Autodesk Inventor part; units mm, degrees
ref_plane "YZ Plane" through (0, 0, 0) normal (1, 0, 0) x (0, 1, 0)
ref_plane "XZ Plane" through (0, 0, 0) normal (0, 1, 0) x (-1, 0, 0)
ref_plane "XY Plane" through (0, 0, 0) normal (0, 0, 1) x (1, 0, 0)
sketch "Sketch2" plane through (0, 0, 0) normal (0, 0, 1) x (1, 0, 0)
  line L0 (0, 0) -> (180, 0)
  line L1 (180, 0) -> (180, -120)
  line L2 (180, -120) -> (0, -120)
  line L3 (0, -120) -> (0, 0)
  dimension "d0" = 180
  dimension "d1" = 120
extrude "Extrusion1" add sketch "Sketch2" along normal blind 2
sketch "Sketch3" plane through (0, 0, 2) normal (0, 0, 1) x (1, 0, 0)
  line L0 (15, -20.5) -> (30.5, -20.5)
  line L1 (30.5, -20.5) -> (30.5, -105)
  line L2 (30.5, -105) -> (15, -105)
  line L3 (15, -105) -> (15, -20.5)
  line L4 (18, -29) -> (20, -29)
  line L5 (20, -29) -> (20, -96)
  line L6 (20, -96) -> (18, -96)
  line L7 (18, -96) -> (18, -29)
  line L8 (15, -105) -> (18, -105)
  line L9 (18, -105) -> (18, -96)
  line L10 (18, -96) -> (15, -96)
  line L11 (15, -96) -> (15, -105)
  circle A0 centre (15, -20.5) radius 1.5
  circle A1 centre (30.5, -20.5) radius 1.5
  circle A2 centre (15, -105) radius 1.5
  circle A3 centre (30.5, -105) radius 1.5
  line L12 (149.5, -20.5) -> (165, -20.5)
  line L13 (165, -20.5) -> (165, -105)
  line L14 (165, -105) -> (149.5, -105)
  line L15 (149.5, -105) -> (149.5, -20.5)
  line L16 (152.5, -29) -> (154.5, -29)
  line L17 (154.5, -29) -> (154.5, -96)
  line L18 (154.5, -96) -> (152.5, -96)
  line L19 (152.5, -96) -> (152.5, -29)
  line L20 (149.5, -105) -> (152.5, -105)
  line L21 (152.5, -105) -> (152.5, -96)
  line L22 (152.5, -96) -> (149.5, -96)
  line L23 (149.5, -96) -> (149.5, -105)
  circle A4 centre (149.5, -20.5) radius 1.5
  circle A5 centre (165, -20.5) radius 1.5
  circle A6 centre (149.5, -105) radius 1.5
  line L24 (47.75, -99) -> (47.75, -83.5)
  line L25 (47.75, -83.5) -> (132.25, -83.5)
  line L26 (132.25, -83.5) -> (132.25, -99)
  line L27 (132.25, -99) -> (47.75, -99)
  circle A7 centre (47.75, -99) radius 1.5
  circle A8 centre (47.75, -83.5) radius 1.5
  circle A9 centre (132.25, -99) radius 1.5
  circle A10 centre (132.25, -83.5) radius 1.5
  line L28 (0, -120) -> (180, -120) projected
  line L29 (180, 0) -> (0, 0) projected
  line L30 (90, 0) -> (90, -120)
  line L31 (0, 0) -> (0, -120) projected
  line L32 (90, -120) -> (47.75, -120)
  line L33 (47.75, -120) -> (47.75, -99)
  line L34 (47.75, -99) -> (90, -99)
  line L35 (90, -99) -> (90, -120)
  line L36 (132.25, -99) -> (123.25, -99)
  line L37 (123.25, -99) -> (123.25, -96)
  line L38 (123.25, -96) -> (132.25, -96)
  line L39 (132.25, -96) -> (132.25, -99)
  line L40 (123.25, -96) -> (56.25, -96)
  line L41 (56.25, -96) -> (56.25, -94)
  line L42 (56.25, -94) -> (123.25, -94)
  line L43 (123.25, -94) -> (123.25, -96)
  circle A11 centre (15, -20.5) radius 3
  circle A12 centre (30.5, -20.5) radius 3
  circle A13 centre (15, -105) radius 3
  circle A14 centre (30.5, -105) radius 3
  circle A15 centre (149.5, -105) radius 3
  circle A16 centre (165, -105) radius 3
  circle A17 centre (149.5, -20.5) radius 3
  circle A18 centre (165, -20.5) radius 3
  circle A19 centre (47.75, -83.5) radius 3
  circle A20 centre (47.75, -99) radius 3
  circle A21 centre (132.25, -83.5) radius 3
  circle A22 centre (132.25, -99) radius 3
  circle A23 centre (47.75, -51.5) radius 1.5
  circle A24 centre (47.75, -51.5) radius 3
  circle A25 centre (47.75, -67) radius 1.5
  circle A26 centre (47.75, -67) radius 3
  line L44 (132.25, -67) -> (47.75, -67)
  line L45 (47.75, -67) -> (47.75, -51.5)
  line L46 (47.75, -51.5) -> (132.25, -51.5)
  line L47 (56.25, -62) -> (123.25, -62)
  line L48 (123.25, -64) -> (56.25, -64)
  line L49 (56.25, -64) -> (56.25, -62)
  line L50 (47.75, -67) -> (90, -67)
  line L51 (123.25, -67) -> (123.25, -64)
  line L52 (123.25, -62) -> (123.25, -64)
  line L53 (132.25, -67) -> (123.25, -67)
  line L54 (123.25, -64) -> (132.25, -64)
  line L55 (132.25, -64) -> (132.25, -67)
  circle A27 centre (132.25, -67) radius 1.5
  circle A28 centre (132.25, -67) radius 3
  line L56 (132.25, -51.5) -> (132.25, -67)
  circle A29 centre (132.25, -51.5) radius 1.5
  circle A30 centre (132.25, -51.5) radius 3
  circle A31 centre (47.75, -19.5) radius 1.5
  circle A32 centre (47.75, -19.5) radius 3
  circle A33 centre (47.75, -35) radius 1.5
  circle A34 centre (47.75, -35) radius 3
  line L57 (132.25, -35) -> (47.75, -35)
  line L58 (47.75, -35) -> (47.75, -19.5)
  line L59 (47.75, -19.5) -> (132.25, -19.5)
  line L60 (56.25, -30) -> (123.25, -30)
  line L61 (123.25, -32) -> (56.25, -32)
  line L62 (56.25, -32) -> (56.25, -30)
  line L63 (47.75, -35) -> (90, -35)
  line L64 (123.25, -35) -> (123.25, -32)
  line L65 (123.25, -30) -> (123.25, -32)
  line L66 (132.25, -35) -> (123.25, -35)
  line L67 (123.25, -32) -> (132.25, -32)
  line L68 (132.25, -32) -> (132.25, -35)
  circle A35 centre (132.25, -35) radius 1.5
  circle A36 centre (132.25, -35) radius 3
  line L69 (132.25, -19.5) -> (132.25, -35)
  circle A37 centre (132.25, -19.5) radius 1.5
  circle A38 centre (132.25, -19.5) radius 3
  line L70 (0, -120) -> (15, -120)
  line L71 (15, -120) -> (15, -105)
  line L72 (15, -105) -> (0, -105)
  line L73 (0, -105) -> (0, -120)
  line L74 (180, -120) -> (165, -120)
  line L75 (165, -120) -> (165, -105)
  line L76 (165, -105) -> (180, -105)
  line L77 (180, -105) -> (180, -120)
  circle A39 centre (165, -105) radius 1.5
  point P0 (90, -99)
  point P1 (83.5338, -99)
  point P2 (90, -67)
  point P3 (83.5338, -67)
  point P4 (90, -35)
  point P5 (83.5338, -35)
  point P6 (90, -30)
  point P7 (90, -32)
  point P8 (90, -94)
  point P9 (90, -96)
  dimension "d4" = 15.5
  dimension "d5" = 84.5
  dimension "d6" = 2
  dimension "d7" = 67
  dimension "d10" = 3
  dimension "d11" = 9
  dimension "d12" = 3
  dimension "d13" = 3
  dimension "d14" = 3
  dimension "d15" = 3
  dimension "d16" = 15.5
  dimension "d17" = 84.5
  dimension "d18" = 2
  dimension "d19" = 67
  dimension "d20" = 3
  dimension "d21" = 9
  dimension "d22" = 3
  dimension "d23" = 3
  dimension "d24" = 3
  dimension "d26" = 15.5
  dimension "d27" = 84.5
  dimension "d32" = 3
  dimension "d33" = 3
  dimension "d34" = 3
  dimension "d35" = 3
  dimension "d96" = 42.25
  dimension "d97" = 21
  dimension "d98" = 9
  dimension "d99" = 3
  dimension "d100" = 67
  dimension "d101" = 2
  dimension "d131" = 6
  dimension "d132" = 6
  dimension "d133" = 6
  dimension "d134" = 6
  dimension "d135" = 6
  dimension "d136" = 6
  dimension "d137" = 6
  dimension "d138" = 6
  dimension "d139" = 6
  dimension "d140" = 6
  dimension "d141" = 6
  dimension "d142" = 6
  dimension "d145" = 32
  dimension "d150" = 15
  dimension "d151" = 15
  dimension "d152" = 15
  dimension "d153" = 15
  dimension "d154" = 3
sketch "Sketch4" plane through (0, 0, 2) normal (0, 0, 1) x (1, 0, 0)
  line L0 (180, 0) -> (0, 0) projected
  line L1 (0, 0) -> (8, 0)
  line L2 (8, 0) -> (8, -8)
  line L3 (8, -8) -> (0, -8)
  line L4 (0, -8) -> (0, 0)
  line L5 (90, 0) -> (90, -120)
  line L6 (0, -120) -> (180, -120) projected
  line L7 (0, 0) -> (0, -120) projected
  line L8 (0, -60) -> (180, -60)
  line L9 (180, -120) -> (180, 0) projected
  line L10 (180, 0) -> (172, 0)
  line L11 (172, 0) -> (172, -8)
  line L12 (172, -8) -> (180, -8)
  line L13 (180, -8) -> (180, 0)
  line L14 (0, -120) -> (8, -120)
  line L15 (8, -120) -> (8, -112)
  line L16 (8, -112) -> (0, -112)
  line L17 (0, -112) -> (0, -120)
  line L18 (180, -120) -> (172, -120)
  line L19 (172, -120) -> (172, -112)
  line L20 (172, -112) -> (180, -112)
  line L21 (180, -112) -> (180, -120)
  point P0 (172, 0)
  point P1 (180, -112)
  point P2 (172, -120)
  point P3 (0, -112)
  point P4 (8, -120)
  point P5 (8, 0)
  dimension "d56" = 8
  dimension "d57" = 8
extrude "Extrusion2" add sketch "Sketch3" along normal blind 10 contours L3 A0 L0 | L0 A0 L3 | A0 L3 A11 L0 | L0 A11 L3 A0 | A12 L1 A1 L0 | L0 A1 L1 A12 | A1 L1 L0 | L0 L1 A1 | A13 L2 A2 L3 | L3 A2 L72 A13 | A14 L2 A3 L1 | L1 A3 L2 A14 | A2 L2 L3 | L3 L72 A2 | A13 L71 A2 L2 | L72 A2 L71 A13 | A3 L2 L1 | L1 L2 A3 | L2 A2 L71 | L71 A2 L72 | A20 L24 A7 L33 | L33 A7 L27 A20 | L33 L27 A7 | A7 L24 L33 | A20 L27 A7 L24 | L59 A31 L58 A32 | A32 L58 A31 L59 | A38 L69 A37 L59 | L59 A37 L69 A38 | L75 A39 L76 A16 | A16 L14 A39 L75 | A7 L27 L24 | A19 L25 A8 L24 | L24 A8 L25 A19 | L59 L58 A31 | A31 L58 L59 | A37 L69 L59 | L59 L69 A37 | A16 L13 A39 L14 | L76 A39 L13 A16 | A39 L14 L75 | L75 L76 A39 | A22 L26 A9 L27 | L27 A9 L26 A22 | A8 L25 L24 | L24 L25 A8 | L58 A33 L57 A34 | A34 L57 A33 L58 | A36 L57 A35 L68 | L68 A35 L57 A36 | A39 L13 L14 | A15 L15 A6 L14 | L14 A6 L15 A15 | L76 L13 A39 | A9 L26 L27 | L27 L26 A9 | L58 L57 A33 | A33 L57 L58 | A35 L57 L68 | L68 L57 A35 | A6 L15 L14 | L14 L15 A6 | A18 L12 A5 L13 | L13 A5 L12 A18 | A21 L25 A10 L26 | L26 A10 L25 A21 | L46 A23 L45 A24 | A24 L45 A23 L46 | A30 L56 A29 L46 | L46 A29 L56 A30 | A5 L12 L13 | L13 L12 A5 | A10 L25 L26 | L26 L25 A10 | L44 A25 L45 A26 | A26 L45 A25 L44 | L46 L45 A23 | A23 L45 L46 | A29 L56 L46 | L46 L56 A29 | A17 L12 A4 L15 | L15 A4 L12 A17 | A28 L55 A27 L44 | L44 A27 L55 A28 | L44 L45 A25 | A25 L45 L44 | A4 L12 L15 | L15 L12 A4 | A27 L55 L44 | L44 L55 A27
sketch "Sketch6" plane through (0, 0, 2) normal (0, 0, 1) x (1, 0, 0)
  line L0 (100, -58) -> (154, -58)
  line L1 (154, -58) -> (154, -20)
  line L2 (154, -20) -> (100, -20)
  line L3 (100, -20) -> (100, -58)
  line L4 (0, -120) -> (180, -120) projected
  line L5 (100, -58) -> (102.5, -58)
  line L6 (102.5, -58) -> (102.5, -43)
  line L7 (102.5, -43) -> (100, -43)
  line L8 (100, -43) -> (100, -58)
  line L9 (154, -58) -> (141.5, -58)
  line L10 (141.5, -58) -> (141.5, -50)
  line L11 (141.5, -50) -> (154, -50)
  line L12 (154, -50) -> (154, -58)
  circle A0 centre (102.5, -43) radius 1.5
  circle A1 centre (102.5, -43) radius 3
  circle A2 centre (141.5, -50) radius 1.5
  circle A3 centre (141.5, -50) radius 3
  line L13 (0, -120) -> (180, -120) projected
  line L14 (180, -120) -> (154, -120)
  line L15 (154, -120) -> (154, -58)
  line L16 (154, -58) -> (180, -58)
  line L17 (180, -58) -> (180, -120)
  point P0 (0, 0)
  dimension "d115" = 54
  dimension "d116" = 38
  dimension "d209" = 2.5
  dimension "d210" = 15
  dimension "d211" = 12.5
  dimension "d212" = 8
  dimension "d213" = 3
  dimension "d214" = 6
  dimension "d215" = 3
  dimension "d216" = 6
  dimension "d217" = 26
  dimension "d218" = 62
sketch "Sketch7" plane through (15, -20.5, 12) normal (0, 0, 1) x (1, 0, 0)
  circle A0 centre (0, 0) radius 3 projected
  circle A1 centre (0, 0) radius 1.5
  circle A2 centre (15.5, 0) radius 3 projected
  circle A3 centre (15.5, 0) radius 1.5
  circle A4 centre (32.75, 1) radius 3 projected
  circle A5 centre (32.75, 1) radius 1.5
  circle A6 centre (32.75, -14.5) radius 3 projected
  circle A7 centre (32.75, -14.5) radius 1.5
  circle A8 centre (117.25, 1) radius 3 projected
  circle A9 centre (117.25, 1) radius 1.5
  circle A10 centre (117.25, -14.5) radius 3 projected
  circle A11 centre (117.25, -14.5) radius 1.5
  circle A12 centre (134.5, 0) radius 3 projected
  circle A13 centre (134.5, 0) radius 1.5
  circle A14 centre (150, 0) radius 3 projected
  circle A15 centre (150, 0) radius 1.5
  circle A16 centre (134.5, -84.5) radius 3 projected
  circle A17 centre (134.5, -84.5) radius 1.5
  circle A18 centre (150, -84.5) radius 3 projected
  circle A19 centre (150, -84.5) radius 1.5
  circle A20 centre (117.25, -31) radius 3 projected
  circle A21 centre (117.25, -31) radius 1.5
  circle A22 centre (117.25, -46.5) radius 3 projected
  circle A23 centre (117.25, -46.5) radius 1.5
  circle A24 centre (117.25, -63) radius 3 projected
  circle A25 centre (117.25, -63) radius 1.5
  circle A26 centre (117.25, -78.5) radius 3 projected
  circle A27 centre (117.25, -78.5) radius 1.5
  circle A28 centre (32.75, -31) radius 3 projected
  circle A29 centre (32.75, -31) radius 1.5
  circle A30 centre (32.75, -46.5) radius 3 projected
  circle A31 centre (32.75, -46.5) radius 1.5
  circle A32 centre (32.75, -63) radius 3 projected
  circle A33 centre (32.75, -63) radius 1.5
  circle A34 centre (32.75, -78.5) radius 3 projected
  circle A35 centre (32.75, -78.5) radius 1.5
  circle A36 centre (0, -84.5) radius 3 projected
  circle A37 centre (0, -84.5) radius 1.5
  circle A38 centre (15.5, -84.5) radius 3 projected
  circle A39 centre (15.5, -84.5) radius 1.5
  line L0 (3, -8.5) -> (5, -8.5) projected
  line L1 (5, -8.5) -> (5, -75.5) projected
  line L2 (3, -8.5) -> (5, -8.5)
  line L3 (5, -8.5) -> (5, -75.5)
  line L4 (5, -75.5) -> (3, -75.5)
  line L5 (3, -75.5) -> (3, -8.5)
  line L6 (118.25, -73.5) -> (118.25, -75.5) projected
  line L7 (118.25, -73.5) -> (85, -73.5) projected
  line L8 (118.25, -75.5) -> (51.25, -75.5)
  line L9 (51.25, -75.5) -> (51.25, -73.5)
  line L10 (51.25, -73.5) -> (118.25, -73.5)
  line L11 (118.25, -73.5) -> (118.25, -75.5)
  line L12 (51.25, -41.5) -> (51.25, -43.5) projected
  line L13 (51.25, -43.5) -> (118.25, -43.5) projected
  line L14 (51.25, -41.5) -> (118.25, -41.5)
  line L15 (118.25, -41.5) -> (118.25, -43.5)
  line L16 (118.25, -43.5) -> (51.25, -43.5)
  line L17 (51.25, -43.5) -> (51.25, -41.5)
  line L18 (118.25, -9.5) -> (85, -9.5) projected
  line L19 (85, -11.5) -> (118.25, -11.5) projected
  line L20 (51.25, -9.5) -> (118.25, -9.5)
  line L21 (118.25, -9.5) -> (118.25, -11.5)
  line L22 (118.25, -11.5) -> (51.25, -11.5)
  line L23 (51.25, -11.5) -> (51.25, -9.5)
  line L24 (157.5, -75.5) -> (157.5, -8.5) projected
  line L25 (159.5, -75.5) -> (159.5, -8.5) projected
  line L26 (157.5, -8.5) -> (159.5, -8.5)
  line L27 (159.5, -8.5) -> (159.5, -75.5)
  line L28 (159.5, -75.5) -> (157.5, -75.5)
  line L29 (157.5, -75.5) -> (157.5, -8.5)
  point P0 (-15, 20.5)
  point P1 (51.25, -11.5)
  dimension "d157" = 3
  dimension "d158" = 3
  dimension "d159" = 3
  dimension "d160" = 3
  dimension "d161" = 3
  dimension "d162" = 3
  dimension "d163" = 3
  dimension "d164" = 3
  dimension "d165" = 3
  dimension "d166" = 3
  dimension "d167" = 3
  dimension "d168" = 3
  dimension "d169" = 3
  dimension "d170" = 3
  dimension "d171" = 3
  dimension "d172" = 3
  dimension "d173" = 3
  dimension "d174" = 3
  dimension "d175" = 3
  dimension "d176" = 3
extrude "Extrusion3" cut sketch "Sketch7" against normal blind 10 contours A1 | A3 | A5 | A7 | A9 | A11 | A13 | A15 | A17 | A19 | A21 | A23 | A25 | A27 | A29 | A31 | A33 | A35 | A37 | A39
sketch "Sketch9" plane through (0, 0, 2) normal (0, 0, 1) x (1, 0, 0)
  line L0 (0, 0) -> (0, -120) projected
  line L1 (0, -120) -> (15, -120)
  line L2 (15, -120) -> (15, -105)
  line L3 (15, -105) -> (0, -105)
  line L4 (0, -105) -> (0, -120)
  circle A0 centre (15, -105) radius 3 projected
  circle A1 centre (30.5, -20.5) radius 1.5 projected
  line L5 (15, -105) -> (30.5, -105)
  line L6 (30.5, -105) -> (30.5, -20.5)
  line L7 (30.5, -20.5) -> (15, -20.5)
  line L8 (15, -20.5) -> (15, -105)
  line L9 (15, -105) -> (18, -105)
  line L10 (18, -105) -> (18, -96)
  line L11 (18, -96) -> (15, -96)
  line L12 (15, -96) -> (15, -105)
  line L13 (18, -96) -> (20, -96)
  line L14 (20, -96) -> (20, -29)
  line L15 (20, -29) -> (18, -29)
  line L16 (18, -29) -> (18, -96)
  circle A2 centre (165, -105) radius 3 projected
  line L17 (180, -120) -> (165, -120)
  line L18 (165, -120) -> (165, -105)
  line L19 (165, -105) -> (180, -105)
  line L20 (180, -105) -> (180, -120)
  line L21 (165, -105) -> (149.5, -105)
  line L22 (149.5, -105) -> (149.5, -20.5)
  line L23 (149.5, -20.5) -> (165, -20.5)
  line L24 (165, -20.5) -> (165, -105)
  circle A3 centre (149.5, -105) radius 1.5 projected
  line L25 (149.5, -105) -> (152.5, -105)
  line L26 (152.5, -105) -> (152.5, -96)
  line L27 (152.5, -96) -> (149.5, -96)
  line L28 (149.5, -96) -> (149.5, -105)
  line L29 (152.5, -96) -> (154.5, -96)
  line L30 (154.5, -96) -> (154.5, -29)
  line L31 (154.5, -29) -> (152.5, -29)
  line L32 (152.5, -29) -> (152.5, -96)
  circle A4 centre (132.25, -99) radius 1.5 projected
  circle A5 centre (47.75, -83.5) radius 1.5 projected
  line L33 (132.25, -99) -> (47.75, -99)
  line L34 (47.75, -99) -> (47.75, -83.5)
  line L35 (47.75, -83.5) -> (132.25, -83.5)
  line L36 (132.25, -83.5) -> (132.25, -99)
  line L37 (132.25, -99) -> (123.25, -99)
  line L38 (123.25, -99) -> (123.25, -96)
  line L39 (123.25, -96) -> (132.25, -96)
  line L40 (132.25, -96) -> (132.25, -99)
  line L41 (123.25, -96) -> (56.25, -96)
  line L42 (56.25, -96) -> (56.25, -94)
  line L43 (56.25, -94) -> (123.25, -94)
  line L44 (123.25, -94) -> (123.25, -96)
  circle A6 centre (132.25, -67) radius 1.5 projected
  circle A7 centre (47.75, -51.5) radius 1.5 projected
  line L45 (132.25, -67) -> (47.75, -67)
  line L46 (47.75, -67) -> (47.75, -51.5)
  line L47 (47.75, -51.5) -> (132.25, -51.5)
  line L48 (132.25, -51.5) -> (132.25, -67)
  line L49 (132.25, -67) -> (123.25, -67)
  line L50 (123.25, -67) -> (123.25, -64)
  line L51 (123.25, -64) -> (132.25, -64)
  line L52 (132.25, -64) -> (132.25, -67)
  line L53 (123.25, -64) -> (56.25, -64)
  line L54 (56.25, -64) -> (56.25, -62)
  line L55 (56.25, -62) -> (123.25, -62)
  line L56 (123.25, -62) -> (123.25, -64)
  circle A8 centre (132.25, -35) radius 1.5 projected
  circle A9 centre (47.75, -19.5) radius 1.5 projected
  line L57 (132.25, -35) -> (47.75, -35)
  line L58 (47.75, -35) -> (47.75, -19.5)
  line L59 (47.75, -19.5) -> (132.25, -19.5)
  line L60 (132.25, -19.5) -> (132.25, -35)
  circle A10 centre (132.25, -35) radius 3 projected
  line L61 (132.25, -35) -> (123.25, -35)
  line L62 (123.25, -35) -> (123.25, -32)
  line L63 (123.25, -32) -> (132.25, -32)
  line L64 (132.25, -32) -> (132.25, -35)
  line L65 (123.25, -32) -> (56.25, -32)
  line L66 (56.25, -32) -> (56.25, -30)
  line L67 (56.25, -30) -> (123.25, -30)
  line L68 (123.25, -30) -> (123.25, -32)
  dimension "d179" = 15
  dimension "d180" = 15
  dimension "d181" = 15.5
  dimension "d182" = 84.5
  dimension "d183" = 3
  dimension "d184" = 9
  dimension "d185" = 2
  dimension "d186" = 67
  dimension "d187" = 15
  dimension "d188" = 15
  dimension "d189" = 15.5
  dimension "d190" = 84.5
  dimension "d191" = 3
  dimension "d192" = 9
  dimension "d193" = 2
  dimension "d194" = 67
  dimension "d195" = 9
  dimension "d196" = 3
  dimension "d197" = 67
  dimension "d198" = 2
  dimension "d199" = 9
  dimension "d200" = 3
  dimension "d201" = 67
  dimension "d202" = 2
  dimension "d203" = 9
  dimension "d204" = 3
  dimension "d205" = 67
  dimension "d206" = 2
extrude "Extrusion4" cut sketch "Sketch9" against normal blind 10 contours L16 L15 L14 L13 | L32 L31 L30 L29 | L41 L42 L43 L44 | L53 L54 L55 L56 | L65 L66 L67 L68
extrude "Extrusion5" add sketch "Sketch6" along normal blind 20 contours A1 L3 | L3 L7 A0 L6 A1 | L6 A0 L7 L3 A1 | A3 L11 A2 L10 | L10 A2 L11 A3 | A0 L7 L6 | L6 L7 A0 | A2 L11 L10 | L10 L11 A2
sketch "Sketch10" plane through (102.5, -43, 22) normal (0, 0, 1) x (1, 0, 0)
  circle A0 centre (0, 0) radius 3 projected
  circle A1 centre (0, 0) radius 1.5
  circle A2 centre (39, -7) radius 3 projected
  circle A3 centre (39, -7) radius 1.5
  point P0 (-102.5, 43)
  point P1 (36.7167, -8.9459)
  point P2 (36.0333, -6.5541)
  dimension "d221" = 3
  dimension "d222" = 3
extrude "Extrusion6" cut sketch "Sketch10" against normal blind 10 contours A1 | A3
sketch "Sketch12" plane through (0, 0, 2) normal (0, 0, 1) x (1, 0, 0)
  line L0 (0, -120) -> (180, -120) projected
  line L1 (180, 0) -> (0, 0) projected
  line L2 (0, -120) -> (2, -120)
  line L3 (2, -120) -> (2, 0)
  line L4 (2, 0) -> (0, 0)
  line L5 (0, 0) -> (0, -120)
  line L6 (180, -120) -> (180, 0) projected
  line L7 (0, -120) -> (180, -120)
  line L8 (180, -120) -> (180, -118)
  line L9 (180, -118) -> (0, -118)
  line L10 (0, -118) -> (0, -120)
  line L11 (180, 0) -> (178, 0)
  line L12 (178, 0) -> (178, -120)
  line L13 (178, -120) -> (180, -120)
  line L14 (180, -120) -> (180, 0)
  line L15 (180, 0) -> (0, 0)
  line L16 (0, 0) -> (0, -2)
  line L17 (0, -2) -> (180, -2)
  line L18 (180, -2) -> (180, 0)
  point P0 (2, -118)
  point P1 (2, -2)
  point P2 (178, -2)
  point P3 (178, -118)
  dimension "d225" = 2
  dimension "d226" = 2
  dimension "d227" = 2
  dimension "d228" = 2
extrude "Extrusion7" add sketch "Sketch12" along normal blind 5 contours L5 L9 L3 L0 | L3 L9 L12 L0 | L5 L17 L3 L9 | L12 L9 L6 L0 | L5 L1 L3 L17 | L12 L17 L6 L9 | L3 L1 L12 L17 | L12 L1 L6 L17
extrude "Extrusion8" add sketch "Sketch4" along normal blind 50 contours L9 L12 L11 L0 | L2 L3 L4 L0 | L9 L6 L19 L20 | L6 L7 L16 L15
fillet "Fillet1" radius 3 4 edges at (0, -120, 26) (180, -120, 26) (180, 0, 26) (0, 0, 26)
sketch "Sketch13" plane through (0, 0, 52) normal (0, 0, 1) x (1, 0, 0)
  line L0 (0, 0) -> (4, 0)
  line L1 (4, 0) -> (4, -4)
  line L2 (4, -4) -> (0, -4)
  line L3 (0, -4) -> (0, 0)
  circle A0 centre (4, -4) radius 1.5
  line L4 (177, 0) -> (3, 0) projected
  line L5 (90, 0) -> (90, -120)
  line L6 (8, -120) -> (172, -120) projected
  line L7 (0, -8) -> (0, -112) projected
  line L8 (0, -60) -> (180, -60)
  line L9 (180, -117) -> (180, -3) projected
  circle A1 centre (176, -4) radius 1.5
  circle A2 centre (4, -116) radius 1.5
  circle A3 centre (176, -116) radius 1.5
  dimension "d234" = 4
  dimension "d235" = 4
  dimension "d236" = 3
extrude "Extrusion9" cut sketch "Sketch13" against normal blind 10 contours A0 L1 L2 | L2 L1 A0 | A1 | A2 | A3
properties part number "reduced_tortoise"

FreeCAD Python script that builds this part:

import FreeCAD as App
import Part
import Sketcher


def edges_at(feature, points):
    """Names of the edges that pass closest to the given points."""
    edges = feature.Shape.Edges
    near = lambda p: min(range(len(edges)), key=lambda i: edges[i].distToShape(Part.Vertex(*p))[0])
    return sorted({f"Edge{near(p) + 1}" for p in points})

doc = App.newDocument("Part")
body = doc.addObject("PartDesign::Body", "Body")

# Sketch on XY plane
sketch1 = doc.addObject("Sketcher::SketchObject", "Sketch")
body.addObject(sketch1)
sketch1.AttachmentSupport = (doc.XY_Plane, [""])
sketch1.MapMode = "FlatFace"
sketch1.addGeometry(Part.LineSegment(App.Vector(180, 0, 0), App.Vector(0, 0, 0)), False)
sketch1.addGeometry(Part.LineSegment(App.Vector(0, 0, 0), App.Vector(0, -120, 0)), False)
sketch1.addGeometry(Part.LineSegment(App.Vector(0, -120, 0), App.Vector(180, -120, 0)), False)
sketch1.addGeometry(Part.LineSegment(App.Vector(180, -120, 0), App.Vector(180, 0, 0)), False)
sketch1.addConstraint(Sketcher.Constraint("Coincident", 0, 2, 1, 1))
sketch1.addConstraint(Sketcher.Constraint("Coincident", 1, 2, 2, 1))
sketch1.addConstraint(Sketcher.Constraint("Coincident", 2, 2, 3, 1))
sketch1.addConstraint(Sketcher.Constraint("Coincident", 3, 2, 0, 1))
sketch1.addConstraint(Sketcher.Constraint("Horizontal", 0))
sketch1.addConstraint(Sketcher.Constraint("Vertical", 1))
sketch1.addConstraint(Sketcher.Constraint("Horizontal", 2))
sketch1.addConstraint(Sketcher.Constraint("Vertical", 3))
sketch1.addConstraint(Sketcher.Constraint("Coincident", 0, 2, -1, 1))
sketch1.addConstraint(Sketcher.Constraint("DistanceX", 0, 2, 0, 1, 180.0))
sketch1.addConstraint(Sketcher.Constraint("DistanceY", 1, 2, 1, 1, 120.0))
pad1 = doc.addObject("PartDesign::Pad", "Pad")
body.addObject(pad1)
pad1.Profile = sketch1
pad1.Length = 2

# Sketch on XY plane
sketch2 = doc.addObject("Sketcher::SketchObject", "Sketch001")
body.addObject(sketch2)
sketch2.AttachmentSupport = (doc.XY_Plane, [""])
sketch2.MapMode = "FlatFace"
sketch2.AttachmentOffset = App.Placement(App.Vector(0, 0, 2), App.Rotation())
sketch2.addGeometry(Part.Circle(App.Vector(15, -20.5, 0), App.Vector(0, 0, 1), 3), False)
sketch2.addGeometry(Part.Circle(App.Vector(30.5, -20.5, 0), App.Vector(0, 0, 1), 3), False)
sketch2.addGeometry(Part.Circle(App.Vector(15, -105, 0), App.Vector(0, 0, 1), 3), False)
sketch2.addGeometry(Part.Circle(App.Vector(30.5, -105, 0), App.Vector(0, 0, 1), 3), False)
sketch2.addGeometry(Part.Circle(App.Vector(47.8, -99, 0), App.Vector(0, 0, 1), 3), False)
sketch2.addGeometry(Part.Circle(App.Vector(47.8, -19.5, 0), App.Vector(0, 0, 1), 3), False)
sketch2.addGeometry(Part.Circle(App.Vector(132.2, -19.5, 0), App.Vector(0, 0, 1), 3), False)
sketch2.addGeometry(Part.Circle(App.Vector(165, -105, 0), App.Vector(0, 0, 1), 3), False)
sketch2.addGeometry(Part.Circle(App.Vector(47.8, -83.5, 0), App.Vector(0, 0, 1), 3), False)
sketch2.addGeometry(Part.Circle(App.Vector(132.2, -99, 0), App.Vector(0, 0, 1), 3), False)
sketch2.addGeometry(Part.Circle(App.Vector(47.8, -35, 0), App.Vector(0, 0, 1), 3), False)
sketch2.addGeometry(Part.Circle(App.Vector(132.2, -35, 0), App.Vector(0, 0, 1), 3), False)
sketch2.addGeometry(Part.Circle(App.Vector(149.5, -105, 0), App.Vector(0, 0, 1), 3), False)
sketch2.addGeometry(Part.Circle(App.Vector(165, -20.5, 0), App.Vector(0, 0, 1), 3), False)
sketch2.addGeometry(Part.Circle(App.Vector(132.2, -83.5, 0), App.Vector(0, 0, 1), 3), False)
sketch2.addGeometry(Part.Circle(App.Vector(47.8, -51.5, 0), App.Vector(0, 0, 1), 3), False)
sketch2.addGeometry(Part.Circle(App.Vector(132.2, -51.5, 0), App.Vector(0, 0, 1), 3), False)
sketch2.addGeometry(Part.Circle(App.Vector(47.8, -67, 0), App.Vector(0, 0, 1), 3), False)
sketch2.addGeometry(Part.Circle(App.Vector(149.5, -20.5, 0), App.Vector(0, 0, 1), 3), False)
sketch2.addGeometry(Part.Circle(App.Vector(132.2, -67, 0), App.Vector(0, 0, 1), 3), False)
sketch2.addConstraint(Sketcher.Constraint("Equal", 0, 1))
sketch2.addConstraint(Sketcher.Constraint("Equal", 1, 2))
sketch2.addConstraint(Sketcher.Constraint("Equal", 2, 3))
sketch2.addConstraint(Sketcher.Constraint("Equal", 3, 4))
sketch2.addConstraint(Sketcher.Constraint("Equal", 4, 5))
sketch2.addConstraint(Sketcher.Constraint("Equal", 5, 6))
sketch2.addConstraint(Sketcher.Constraint("Equal", 6, 7))
sketch2.addConstraint(Sketcher.Constraint("Equal", 7, 8))
sketch2.addConstraint(Sketcher.Constraint("Equal", 8, 9))
sketch2.addConstraint(Sketcher.Constraint("Equal", 9, 10))
sketch2.addConstraint(Sketcher.Constraint("Equal", 10, 11))
sketch2.addConstraint(Sketcher.Constraint("Equal", 11, 12))
sketch2.addConstraint(Sketcher.Constraint("Equal", 12, 13))
sketch2.addConstraint(Sketcher.Constraint("Equal", 13, 14))
sketch2.addConstraint(Sketcher.Constraint("Equal", 14, 15))
sketch2.addConstraint(Sketcher.Constraint("Equal", 15, 16))
sketch2.addConstraint(Sketcher.Constraint("Equal", 16, 17))
sketch2.addConstraint(Sketcher.Constraint("Equal", 17, 18))
sketch2.addConstraint(Sketcher.Constraint("Equal", 18, 19))
sketch2.addConstraint(Sketcher.Constraint("Horizontal", 0, 3, 1, 3))
sketch2.addConstraint(Sketcher.Constraint("Horizontal", 2, 3, 3, 3))
sketch2.addConstraint(Sketcher.Constraint("Horizontal", 5, 3, 6, 3))
sketch2.addConstraint(Sketcher.Constraint("Horizontal", 3, 3, 7, 3))
sketch2.addConstraint(Sketcher.Constraint("Horizontal", 4, 3, 9, 3))
sketch2.addConstraint(Sketcher.Constraint("Horizontal", 10, 3, 11, 3))
sketch2.addConstraint(Sketcher.Constraint("Horizontal", 7, 3, 12, 3))
sketch2.addConstraint(Sketcher.Constraint("Horizontal", 1, 3, 13, 3))
sketch2.addConstraint(Sketcher.Constraint("Horizontal", 8, 3, 14, 3))
sketch2.addConstraint(Sketcher.Constraint("Horizontal", 15, 3, 16, 3))
sketch2.addConstraint(Sketcher.Constraint("Horizontal", 13, 3, 18, 3))
sketch2.addConstraint(Sketcher.Constraint("Horizontal", 17, 3, 19, 3))
sketch2.addConstraint(Sketcher.Constraint("Vertical", 0, 3, 2, 3))
sketch2.addConstraint(Sketcher.Constraint("Vertical", 1, 3, 3, 3))
sketch2.addConstraint(Sketcher.Constraint("Vertical", 4, 3, 5, 3))
sketch2.addConstraint(Sketcher.Constraint("Vertical", 5, 3, 8, 3))
sketch2.addConstraint(Sketcher.Constraint("Vertical", 6, 3, 9, 3))
sketch2.addConstraint(Sketcher.Constraint("Vertical", 8, 3, 10, 3))
sketch2.addConstraint(Sketcher.Constraint("Vertical", 9, 3, 11, 3))
sketch2.addConstraint(Sketcher.Constraint("Vertical", 7, 3, 13, 3))
sketch2.addConstraint(Sketcher.Constraint("Vertical", 11, 3, 14, 3))
sketch2.addConstraint(Sketcher.Constraint("Vertical", 10, 3, 15, 3))
sketch2.addConstraint(Sketcher.Constraint("Vertical", 14, 3, 16, 3))
sketch2.addConstraint(Sketcher.Constraint("Vertical", 15, 3, 17, 3))
sketch2.addConstraint(Sketcher.Constraint("Vertical", 12, 3, 18, 3))
sketch2.addConstraint(Sketcher.Constraint("Vertical", 16, 3, 19, 3))
sketch2.addConstraint(Sketcher.Constraint("Diameter", 0, 6.0))
sketch2.addConstraint(Sketcher.Constraint("DistanceX", -1, 1, 0, 3, 15.0))
sketch2.addConstraint(Sketcher.Constraint("DistanceY", 17, 3, -1, 1, 67.0))
sketch2.addConstraint(Sketcher.Constraint("DistanceY", 3, 3, 4, 3, 6.0))
sketch2.addConstraint(Sketcher.Constraint("DistanceY", 15, 3, 5, 3, 32.0))
sketch2.addConstraint(Sketcher.Constraint("DistanceY", 8, 3, 15, 3, 32.0))
sketch2.addConstraint(Sketcher.Constraint("DistanceY", 4, 3, 17, 3, 32.0))
sketch2.addConstraint(Sketcher.Constraint("DistanceY", 17, 3, 10, 3, 32.0))
sketch2.addConstraint(Sketcher.Constraint("DistanceX", 0, 3, 1, 3, 15.5))
sketch2.addConstraint(Sketcher.Constraint("DistanceY", 2, 3, 0, 3, 84.5))
sketch2.addConstraint(Sketcher.Constraint("DistanceX", 5, 3, 6, 3, 84.5))
sketch2.addConstraint(Sketcher.Constraint("DistanceY", 4, 3, 8, 3, 15.5))
sketch2.addConstraint(Sketcher.Constraint("DistanceX", 12, 3, 7, 3, 15.5))
sketch2.addConstraint(Sketcher.Constraint("DistanceX", -1, 1, 7, 3, 165.0))
sketch2.addConstraint(Sketcher.Constraint("DistanceX", -1, 1, 4, 3, 47.75))
pad2 = doc.addObject("PartDesign::Pad", "Pad001")
body.addObject(pad2)
pad2.Profile = sketch2
pad2.Length = 10

# Sketch on XY plane
sketch3 = doc.addObject("Sketcher::SketchObject", "Sketch002")
body.addObject(sketch3)
sketch3.AttachmentSupport = (doc.XY_Plane, [""])
sketch3.MapMode = "FlatFace"
sketch3.AttachmentOffset = App.Placement(App.Vector(0, 0, 12), App.Rotation())
sketch3.addGeometry(Part.Circle(App.Vector(15, -20.5, 0), App.Vector(0, 0, 1), 1.5), False)
sketch3.addGeometry(Part.Circle(App.Vector(30.5, -20.5, 0), App.Vector(0, 0, 1), 1.5), False)
sketch3.addGeometry(Part.Circle(App.Vector(47.8, -19.5, 0), App.Vector(0, 0, 1), 1.5), False)
sketch3.addGeometry(Part.Circle(App.Vector(47.8, -35, 0), App.Vector(0, 0, 1), 1.5), False)
sketch3.addGeometry(Part.Circle(App.Vector(132.2, -19.5, 0), App.Vector(0, 0, 1), 1.5), False)
sketch3.addGeometry(Part.Circle(App.Vector(132.2, -35, 0), App.Vector(0, 0, 1), 1.5), False)
sketch3.addGeometry(Part.Circle(App.Vector(149.5, -20.5, 0), App.Vector(0, 0, 1), 1.5), False)
sketch3.addGeometry(Part.Circle(App.Vector(165, -20.5, 0), App.Vector(0, 0, 1), 1.5), False)
sketch3.addGeometry(Part.Circle(App.Vector(149.5, -105, 0), App.Vector(0, 0, 1), 1.5), False)
sketch3.addGeometry(Part.Circle(App.Vector(165, -105, 0), App.Vector(0, 0, 1), 1.5), False)
sketch3.addGeometry(Part.Circle(App.Vector(132.2, -51.5, 0), App.Vector(0, 0, 1), 1.5), False)
sketch3.addGeometry(Part.Circle(App.Vector(132.2, -67, 0), App.Vector(0, 0, 1), 1.5), False)
sketch3.addGeometry(Part.Circle(App.Vector(132.2, -83.5, 0), App.Vector(0, 0, 1), 1.5), False)
sketch3.addGeometry(Part.Circle(App.Vector(132.2, -99, 0), App.Vector(0, 0, 1), 1.5), False)
sketch3.addGeometry(Part.Circle(App.Vector(47.8, -51.5, 0), App.Vector(0, 0, 1), 1.5), False)
sketch3.addGeometry(Part.Circle(App.Vector(47.8, -67, 0), App.Vector(0, 0, 1), 1.5), False)
sketch3.addGeometry(Part.Circle(App.Vector(47.8, -83.5, 0), App.Vector(0, 0, 1), 1.5), False)
sketch3.addGeometry(Part.Circle(App.Vector(47.8, -99, 0), App.Vector(0, 0, 1), 1.5), False)
sketch3.addGeometry(Part.Circle(App.Vector(15, -105, 0), App.Vector(0, 0, 1), 1.5), False)
sketch3.addGeometry(Part.Circle(App.Vector(30.5, -105, 0), App.Vector(0, 0, 1), 1.5), False)
sketch3.addConstraint(Sketcher.Constraint("Equal", 0, 1))
sketch3.addConstraint(Sketcher.Constraint("Equal", 1, 2))
sketch3.addConstraint(Sketcher.Constraint("Equal", 2, 3))
sketch3.addConstraint(Sketcher.Constraint("Equal", 3, 4))
sketch3.addConstraint(Sketcher.Constraint("Equal", 4, 5))
sketch3.addConstraint(Sketcher.Constraint("Equal", 5, 6))
sketch3.addConstraint(Sketcher.Constraint("Equal", 6, 7))
sketch3.addConstraint(Sketcher.Constraint("Equal", 7, 8))
sketch3.addConstraint(Sketcher.Constraint("Equal", 8, 9))
sketch3.addConstraint(Sketcher.Constraint("Equal", 9, 10))
sketch3.addConstraint(Sketcher.Constraint("Equal", 10, 11))
sketch3.addConstraint(Sketcher.Constraint("Equal", 11, 12))
sketch3.addConstraint(Sketcher.Constraint("Equal", 12, 13))
sketch3.addConstraint(Sketcher.Constraint("Equal", 13, 14))
sketch3.addConstraint(Sketcher.Constraint("Equal", 14, 15))
sketch3.addConstraint(Sketcher.Constraint("Equal", 15, 16))
sketch3.addConstraint(Sketcher.Constraint("Equal", 16, 17))
sketch3.addConstraint(Sketcher.Constraint("Equal", 17, 18))
sketch3.addConstraint(Sketcher.Constraint("Equal", 18, 19))
sketch3.addConstraint(Sketcher.Constraint("Horizontal", 0, 3, 1, 3))
sketch3.addConstraint(Sketcher.Constraint("Horizontal", 2, 3, 4, 3))
sketch3.addConstraint(Sketcher.Constraint("Horizontal", 3, 3, 5, 3))
sketch3.addConstraint(Sketcher.Constraint("Horizontal", 1, 3, 6, 3))
sketch3.addConstraint(Sketcher.Constraint("Horizontal", 6, 3, 7, 3))
sketch3.addConstraint(Sketcher.Constraint("Horizontal", 8, 3, 9, 3))
sketch3.addConstraint(Sketcher.Constraint("Horizontal", 10, 3, 14, 3))
sketch3.addConstraint(Sketcher.Constraint("Horizontal", 11, 3, 15, 3))
sketch3.addConstraint(Sketcher.Constraint("Horizontal", 12, 3, 16, 3))
sketch3.addConstraint(Sketcher.Constraint("Horizontal", 13, 3, 17, 3))
sketch3.addConstraint(Sketcher.Constraint("Horizontal", 9, 3, 18, 3))
sketch3.addConstraint(Sketcher.Constraint("Horizontal", 18, 3, 19, 3))
sketch3.addConstraint(Sketcher.Constraint("Vertical", 2, 3, 3, 3))
sketch3.addConstraint(Sketcher.Constraint("Vertical", 4, 3, 5, 3))
sketch3.addConstraint(Sketcher.Constraint("Vertical", 6, 3, 8, 3))
sketch3.addConstraint(Sketcher.Constraint("Vertical", 7, 3, 9, 3))
sketch3.addConstraint(Sketcher.Constraint("Vertical", 5, 3, 10, 3))
sketch3.addConstraint(Sketcher.Constraint("Vertical", 10, 3, 11, 3))
sketch3.addConstraint(Sketcher.Constraint("Vertical", 11, 3, 12, 3))
sketch3.addConstraint(Sketcher.Constraint("Vertical", 12, 3, 13, 3))
sketch3.addConstraint(Sketcher.Constraint("Vertical", 3, 3, 14, 3))
sketch3.addConstraint(Sketcher.Constraint("Vertical", 14, 3, 15, 3))
sketch3.addConstraint(Sketcher.Constraint("Vertical", 15, 3, 16, 3))
sketch3.addConstraint(Sketcher.Constraint("Vertical", 16, 3, 17, 3))
sketch3.addConstraint(Sketcher.Constraint("Vertical", 0, 3, 18, 3))
sketch3.addConstraint(Sketcher.Constraint("Vertical", 1, 3, 19, 3))
sketch3.addConstraint(Sketcher.Constraint("Diameter", 0, 3.0))
sketch3.addConstraint(Sketcher.Constraint("DistanceX", -1, 1, 0, 3, 15.0))
sketch3.addConstraint(Sketcher.Constraint("DistanceY", 3, 3, -1, 1, 35.0))
sketch3.addConstraint(Sketcher.Constraint("DistanceX", -1, 1, 7, 3, 165.0))
sketch3.addConstraint(Sketcher.Constraint("DistanceY", 8, 3, -1, 1, 105.0))
sketch3.addConstraint(Sketcher.Constraint("DistanceY", 11, 3, -1, 1, 67.0))
sketch3.addConstraint(Sketcher.Constraint("DistanceY", 13, 3, -1, 1, 99.0))
sketch3.addConstraint(Sketcher.Constraint("DistanceY", 1, 3, 2, 3, 1.0))
sketch3.addConstraint(Sketcher.Constraint("DistanceX", 1, 3, 6, 3, 119.0))
sketch3.addConstraint(Sketcher.Constraint("DistanceY", 10, 3, 4, 3, 32.0))
sketch3.addConstraint(Sketcher.Constraint("DistanceY", 12, 3, 10, 3, 32.0))
sketch3.addConstraint(Sketcher.Constraint("DistanceY", 0, 3, -1, 1, 20.5))
sketch3.addConstraint(Sketcher.Constraint("DistanceX", -1, 1, 1, 3, 30.5))
sketch3.addConstraint(Sketcher.Constraint("DistanceX", 2, 3, 4, 3, 84.5))
sketch3.addConstraint(Sketcher.Constraint("DistanceX", -1, 1, 2, 3, 47.75))
pocket1 = doc.addObject("PartDesign::Pocket", "Pocket")
body.addObject(pocket1)
pocket1.Profile = sketch3
pocket1.Length = 10

# Sketch on XY plane
sketch4 = doc.addObject("Sketcher::SketchObject", "Sketch003")
body.addObject(sketch4)
sketch4.AttachmentSupport = (doc.XY_Plane, [""])
sketch4.MapMode = "FlatFace"
sketch4.AttachmentOffset = App.Placement(App.Vector(0, 0, 2), App.Rotation())
sketch4.addGeometry(Part.LineSegment(App.Vector(18, -29, 0), App.Vector(18, -96, 0)), False)
sketch4.addGeometry(Part.LineSegment(App.Vector(18, -96, 0), App.Vector(20, -96, 0)), False)
sketch4.addGeometry(Part.LineSegment(App.Vector(20, -96, 0), App.Vector(20, -29, 0)), False)
sketch4.addGeometry(Part.LineSegment(App.Vector(20, -29, 0), App.Vector(18, -29, 0)), False)
sketch4.addGeometry(Part.LineSegment(App.Vector(152.5, -29, 0), App.Vector(152.5, -96, 0)), False)
sketch4.addGeometry(Part.LineSegment(App.Vector(152.5, -96, 0), App.Vector(154.5, -96, 0)), False)
sketch4.addGeometry(Part.LineSegment(App.Vector(154.5, -96, 0), App.Vector(154.5, -29, 0)), False)
sketch4.addGeometry(Part.LineSegment(App.Vector(154.5, -29, 0), App.Vector(152.5, -29, 0)), False)
sketch4.addGeometry(Part.LineSegment(App.Vector(56.2, -96, 0), App.Vector(123.2, -96, 0)), False)
sketch4.addGeometry(Part.LineSegment(App.Vector(123.2, -96, 0), App.Vector(123.2, -94, 0)), False)
sketch4.addGeometry(Part.LineSegment(App.Vector(123.2, -94, 0), App.Vector(56.2, -94, 0)), False)
sketch4.addGeometry(Part.LineSegment(App.Vector(56.2, -94, 0), App.Vector(56.2, -96, 0)), False)
sketch4.addGeometry(Part.LineSegment(App.Vector(56.2, -64, 0), App.Vector(123.2, -64, 0)), False)
sketch4.addGeometry(Part.LineSegment(App.Vector(123.2, -64, 0), App.Vector(123.2, -62, 0)), False)
sketch4.addGeometry(Part.LineSegment(App.Vector(123.2, -62, 0), App.Vector(56.2, -62, 0)), False)
sketch4.addGeometry(Part.LineSegment(App.Vector(56.2, -62, 0), App.Vector(56.2, -64, 0)), False)
sketch4.addGeometry(Part.LineSegment(App.Vector(56.2, -32, 0), App.Vector(123.2, -32, 0)), False)
sketch4.addGeometry(Part.LineSegment(App.Vector(123.2, -32, 0), App.Vector(123.2, -30, 0)), False)
sketch4.addGeometry(Part.LineSegment(App.Vector(123.2, -30, 0), App.Vector(56.2, -30, 0)), False)
sketch4.addGeometry(Part.LineSegment(App.Vector(56.2, -30, 0), App.Vector(56.2, -32, 0)), False)
sketch4.addConstraint(Sketcher.Constraint("Coincident", 0, 2, 1, 1))
sketch4.addConstraint(Sketcher.Constraint("Coincident", 1, 2, 2, 1))
sketch4.addConstraint(Sketcher.Constraint("Coincident", 2, 2, 3, 1))
sketch4.addConstraint(Sketcher.Constraint("Coincident", 3, 2, 0, 1))
sketch4.addConstraint(Sketcher.Constraint("Coincident", 4, 2, 5, 1))
sketch4.addConstraint(Sketcher.Constraint("Coincident", 5, 2, 6, 1))
sketch4.addConstraint(Sketcher.Constraint("Coincident", 6, 2, 7, 1))
sketch4.addConstraint(Sketcher.Constraint("Coincident", 7, 2, 4, 1))
sketch4.addConstraint(Sketcher.Constraint("Coincident", 8, 2, 9, 1))
sketch4.addConstraint(Sketcher.Constraint("Coincident", 9, 2, 10, 1))
sketch4.addConstraint(Sketcher.Constraint("Coincident", 10, 2, 11, 1))
sketch4.addConstraint(Sketcher.Constraint("Coincident", 11, 2, 8, 1))
sketch4.addConstraint(Sketcher.Constraint("Coincident", 12, 2, 13, 1))
sketch4.addConstraint(Sketcher.Constraint("Coincident", 13, 2, 14, 1))
sketch4.addConstraint(Sketcher.Constraint("Coincident", 14, 2, 15, 1))
sketch4.addConstraint(Sketcher.Constraint("Coincident", 15, 2, 12, 1))
sketch4.addConstraint(Sketcher.Constraint("Coincident", 16, 2, 17, 1))
sketch4.addConstraint(Sketcher.Constraint("Coincident", 17, 2, 18, 1))
sketch4.addConstraint(Sketcher.Constraint("Coincident", 18, 2, 19, 1))
sketch4.addConstraint(Sketcher.Constraint("Coincident", 19, 2, 16, 1))
sketch4.addConstraint(Sketcher.Constraint("Vertical", 0))
sketch4.addConstraint(Sketcher.Constraint("Horizontal", 1))
sketch4.addConstraint(Sketcher.Constraint("Vertical", 2))
sketch4.addConstraint(Sketcher.Constraint("Horizontal", 3))
sketch4.addConstraint(Sketcher.Constraint("Vertical", 4))
sketch4.addConstraint(Sketcher.Constraint("Horizontal", 5))
sketch4.addConstraint(Sketcher.Constraint("Vertical", 6))
sketch4.addConstraint(Sketcher.Constraint("Horizontal", 7))
sketch4.addConstraint(Sketcher.Constraint("Horizontal", 8))
sketch4.addConstraint(Sketcher.Constraint("Vertical", 9))
sketch4.addConstraint(Sketcher.Constraint("Horizontal", 10))
sketch4.addConstraint(Sketcher.Constraint("Vertical", 11))
sketch4.addConstraint(Sketcher.Constraint("Horizontal", 12))
sketch4.addConstraint(Sketcher.Constraint("Vertical", 13))
sketch4.addConstraint(Sketcher.Constraint("Horizontal", 14))
sketch4.addConstraint(Sketcher.Constraint("Vertical", 15))
sketch4.addConstraint(Sketcher.Constraint("Horizontal", 16))
sketch4.addConstraint(Sketcher.Constraint("Vertical", 17))
sketch4.addConstraint(Sketcher.Constraint("Horizontal", 18))
sketch4.addConstraint(Sketcher.Constraint("Vertical", 19))
sketch4.addConstraint(Sketcher.Constraint("Horizontal", 1, 2, 4, 2))
sketch4.addConstraint(Sketcher.Constraint("Horizontal", 3, 2, 6, 2))
sketch4.addConstraint(Sketcher.Constraint("Horizontal", 5, 2, 8, 2))
sketch4.addConstraint(Sketcher.Constraint("Vertical", 9, 2, 12, 2))
sketch4.addConstraint(Sketcher.Constraint("Vertical", 11, 2, 14, 2))
sketch4.addConstraint(Sketcher.Constraint("Vertical", 13, 2, 16, 2))
sketch4.addConstraint(Sketcher.Constraint("Vertical", 15, 2, 18, 2))
sketch4.addConstraint(Sketcher.Constraint("Equal", 3, 5))
sketch4.addConstraint(Sketcher.Constraint("Equal", 18, 0))
sketch4.addConstraint(Sketcher.Constraint("Equal", 7, 9))
sketch4.addConstraint(Sketcher.Constraint("Equal", 11, 13))
sketch4.addConstraint(Sketcher.Constraint("Equal", 15, 17))
sketch4.addConstraint(Sketcher.Constraint("DistanceX", 1, 1, 1, 2, 2.0))
sketch4.addConstraint(Sketcher.Constraint("DistanceX", 8, 1, 8, 2, 67.0))
sketch4.addConstraint(Sketcher.Constraint("DistanceY", 16, 2, 7, 2, 3.0))
sketch4.addConstraint(Sketcher.Constraint("DistanceX", -1, 1, 0, 2, 18.0))
sketch4.addConstraint(Sketcher.Constraint("DistanceY", 0, 2, -1, 1, 96.0))
sketch4.addConstraint(Sketcher.Constraint("DistanceY", 12, 2, -1, 1, 64.0))
sketch4.addConstraint(Sketcher.Constraint("DistanceX", -1, 1, 4, 2, 152.5))
sketch4.addConstraint(Sketcher.Constraint("DistanceX", -1, 1, 8, 2, 123.25))
pocket2 = doc.addObject("PartDesign::Pocket", "Pocket001")
body.addObject(pocket2)
pocket2.Profile = sketch4
pocket2.Length = 10

# Sketch on XY plane
sketch5 = doc.addObject("Sketcher::SketchObject", "Sketch004")
body.addObject(sketch5)
sketch5.AttachmentSupport = (doc.XY_Plane, [""])
sketch5.MapMode = "FlatFace"
sketch5.AttachmentOffset = App.Placement(App.Vector(0, 0, 2), App.Rotation())
sketch5.addGeometry(Part.Circle(App.Vector(102.5, -43, 0), App.Vector(0, 0, 1), 3), False)
sketch5.addGeometry(Part.Circle(App.Vector(141.5, -50, 0), App.Vector(0, 0, 1), 3), False)
sketch5.addConstraint(Sketcher.Constraint("Equal", 0, 1))
sketch5.addConstraint(Sketcher.Constraint("Diameter", 0, 6.0))
sketch5.addConstraint(Sketcher.Constraint("DistanceY", 0, 3, -1, 1, 43.0))
sketch5.addConstraint(Sketcher.Constraint("DistanceY", 1, 3, -1, 1, 50.0))
sketch5.addConstraint(Sketcher.Constraint("DistanceX", 0, 3, 1, 3, 39.0))
sketch5.addConstraint(Sketcher.Constraint("DistanceX", -1, 1, 0, 3, 102.5))
pad3 = doc.addObject("PartDesign::Pad", "Pad002")
body.addObject(pad3)
pad3.Profile = sketch5
pad3.Length = 20

# Sketch on XY plane
sketch6 = doc.addObject("Sketcher::SketchObject", "Sketch005")
body.addObject(sketch6)
sketch6.AttachmentSupport = (doc.XY_Plane, [""])
sketch6.MapMode = "FlatFace"
sketch6.AttachmentOffset = App.Placement(App.Vector(0, 0, 22), App.Rotation())
sketch6.addGeometry(Part.Circle(App.Vector(102.5, -43, 0), App.Vector(0, 0, 1), 1.5), False)
sketch6.addGeometry(Part.Circle(App.Vector(141.5, -50, 0), App.Vector(0, 0, 1), 1.5), False)
sketch6.addConstraint(Sketcher.Constraint("Equal", 0, 1))
sketch6.addConstraint(Sketcher.Constraint("Diameter", 0, 3.0))
sketch6.addConstraint(Sketcher.Constraint("DistanceY", 0, 3, -1, 1, 43.0))
sketch6.addConstraint(Sketcher.Constraint("DistanceY", 1, 3, -1, 1, 50.0))
sketch6.addConstraint(Sketcher.Constraint("DistanceX", 0, 3, 1, 3, 39.0))
sketch6.addConstraint(Sketcher.Constraint("DistanceX", -1, 1, 0, 3, 102.5))
pocket3 = doc.addObject("PartDesign::Pocket", "Pocket002")
body.addObject(pocket3)
pocket3.Profile = sketch6
pocket3.Length = 10

# Sketch on XY plane
sketch7 = doc.addObject("Sketcher::SketchObject", "Sketch006")
body.addObject(sketch7)
sketch7.AttachmentSupport = (doc.XY_Plane, [""])
sketch7.MapMode = "FlatFace"
sketch7.AttachmentOffset = App.Placement(App.Vector(0, 0, 2), App.Rotation())
sketch7.addGeometry(Part.LineSegment(App.Vector(0, -120, 0), App.Vector(180, -120, 0)), False)
sketch7.addGeometry(Part.LineSegment(App.Vector(180, -120, 0), App.Vector(180, 0, 0)), False)
sketch7.addGeometry(Part.LineSegment(App.Vector(180, 0, 0), App.Vector(0, 0, 0)), False)
sketch7.addGeometry(Part.LineSegment(App.Vector(0, 0, 0), App.Vector(0, -120, 0)), False)
sketch7.addGeometry(Part.LineSegment(App.Vector(2, -118, 0), App.Vector(2, -2, 0)), False)
sketch7.addGeometry(Part.LineSegment(App.Vector(2, -2, 0), App.Vector(178, -2, 0)), False)
sketch7.addGeometry(Part.LineSegment(App.Vector(178, -2, 0), App.Vector(178, -118, 0)), False)
sketch7.addGeometry(Part.LineSegment(App.Vector(178, -118, 0), App.Vector(2, -118, 0)), False)
sketch7.addConstraint(Sketcher.Constraint("Coincident", 0, 2, 1, 1))
sketch7.addConstraint(Sketcher.Constraint("Coincident", 1, 2, 2, 1))
sketch7.addConstraint(Sketcher.Constraint("Coincident", 2, 2, 3, 1))
sketch7.addConstraint(Sketcher.Constraint("Coincident", 3, 2, 0, 1))
sketch7.addConstraint(Sketcher.Constraint("Coincident", 4, 2, 5, 1))
sketch7.addConstraint(Sketcher.Constraint("Coincident", 5, 2, 6, 1))
sketch7.addConstraint(Sketcher.Constraint("Coincident", 6, 2, 7, 1))
sketch7.addConstraint(Sketcher.Constraint("Coincident", 7, 2, 4, 1))
sketch7.addConstraint(Sketcher.Constraint("Horizontal", 0))
sketch7.addConstraint(Sketcher.Constraint("Vertical", 1))
sketch7.addConstraint(Sketcher.Constraint("Horizontal", 2))
sketch7.addConstraint(Sketcher.Constraint("Vertical", 3))
sketch7.addConstraint(Sketcher.Constraint("Vertical", 4))
sketch7.addConstraint(Sketcher.Constraint("Horizontal", 5))
sketch7.addConstraint(Sketcher.Constraint("Vertical", 6))
sketch7.addConstraint(Sketcher.Constraint("Horizontal", 7))
sketch7.addConstraint(Sketcher.Constraint("Coincident", 2, 2, -1, 1))
sketch7.addConstraint(Sketcher.Constraint("DistanceX", -1, 1, 4, 2, 2.0))
sketch7.addConstraint(Sketcher.Constraint("DistanceY", 4, 2, -1, 1, 2.0))
sketch7.addConstraint(Sketcher.Constraint("DistanceX", 5, 2, 1, 2, 2.0))
sketch7.addConstraint(Sketcher.Constraint("DistanceY", 0, 2, 6, 2, 2.0))
sketch7.addConstraint(Sketcher.Constraint("DistanceX", 0, 1, 0, 2, 180.0))
sketch7.addConstraint(Sketcher.Constraint("DistanceY", 1, 1, 1, 2, 120.0))
pad4 = doc.addObject("PartDesign::Pad", "Pad003")
body.addObject(pad4)
pad4.Profile = sketch7
pad4.Length = 5

# Sketch on XY plane
sketch8 = doc.addObject("Sketcher::SketchObject", "Sketch007")
body.addObject(sketch8)
sketch8.AttachmentSupport = (doc.XY_Plane, [""])
sketch8.MapMode = "FlatFace"
sketch8.AttachmentOffset = App.Placement(App.Vector(0, 0, 2), App.Rotation())
sketch8.addGeometry(Part.LineSegment(App.Vector(180, -8, 0), App.Vector(180, 0, 0)), False)
sketch8.addGeometry(Part.LineSegment(App.Vector(180, 0, 0), App.Vector(172, 0, 0)), False)
sketch8.addGeometry(Part.LineSegment(App.Vector(172, 0, 0), App.Vector(172, -8, 0)), False)
sketch8.addGeometry(Part.LineSegment(App.Vector(172, -8, 0), App.Vector(180, -8, 0)), False)
sketch8.addGeometry(Part.LineSegment(App.Vector(8, -8, 0), App.Vector(8, 0, 0)), False)
sketch8.addGeometry(Part.LineSegment(App.Vector(8, 0, 0), App.Vector(0, 0, 0)), False)
sketch8.addGeometry(Part.LineSegment(App.Vector(0, 0, 0), App.Vector(0, -8, 0)), False)
sketch8.addGeometry(Part.LineSegment(App.Vector(0, -8, 0), App.Vector(8, -8, 0)), False)
sketch8.addGeometry(Part.LineSegment(App.Vector(180, -120, 0), App.Vector(180, -112, 0)), False)
sketch8.addGeometry(Part.LineSegment(App.Vector(180, -112, 0), App.Vector(172, -112, 0)), False)
sketch8.addGeometry(Part.LineSegment(App.Vector(172, -112, 0), App.Vector(172, -120, 0)), False)
sketch8.addGeometry(Part.LineSegment(App.Vector(172, -120, 0), App.Vector(180, -120, 0)), False)
sketch8.addGeometry(Part.LineSegment(App.Vector(0, -120, 0), App.Vector(8, -120, 0)), False)
sketch8.addGeometry(Part.LineSegment(App.Vector(8, -120, 0), App.Vector(8, -112, 0)), False)
sketch8.addGeometry(Part.LineSegment(App.Vector(8, -112, 0), App.Vector(0, -112, 0)), False)
sketch8.addGeometry(Part.LineSegment(App.Vector(0, -112, 0), App.Vector(0, -120, 0)), False)
sketch8.addConstraint(Sketcher.Constraint("Coincident", 0, 2, 1, 1))
sketch8.addConstraint(Sketcher.Constraint("Coincident", 1, 2, 2, 1))
sketch8.addConstraint(Sketcher.Constraint("Coincident", 2, 2, 3, 1))
sketch8.addConstraint(Sketcher.Constraint("Coincident", 3, 2, 0, 1))
sketch8.addConstraint(Sketcher.Constraint("Coincident", 4, 2, 5, 1))
sketch8.addConstraint(Sketcher.Constraint("Coincident", 5, 2, 6, 1))
sketch8.addConstraint(Sketcher.Constraint("Coincident", 6, 2, 7, 1))
sketch8.addConstraint(Sketcher.Constraint("Coincident", 7, 2, 4, 1))
sketch8.addConstraint(Sketcher.Constraint("Coincident", 8, 2, 9, 1))
sketch8.addConstraint(Sketcher.Constraint("Coincident", 9, 2, 10, 1))
sketch8.addConstraint(Sketcher.Constraint("Coincident", 10, 2, 11, 1))
sketch8.addConstraint(Sketcher.Constraint("Coincident", 11, 2, 8, 1))
sketch8.addConstraint(Sketcher.Constraint("Coincident", 12, 2, 13, 1))
sketch8.addConstraint(Sketcher.Constraint("Coincident", 13, 2, 14, 1))
sketch8.addConstraint(Sketcher.Constraint("Coincident", 14, 2, 15, 1))
sketch8.addConstraint(Sketcher.Constraint("Coincident", 15, 2, 12, 1))
sketch8.addConstraint(Sketcher.Constraint("Vertical", 0))
sketch8.addConstraint(Sketcher.Constraint("Horizontal", 1))
sketch8.addConstraint(Sketcher.Constraint("Vertical", 2))
sketch8.addConstraint(Sketcher.Constraint("Horizontal", 3))
sketch8.addConstraint(Sketcher.Constraint("Vertical", 4))
sketch8.addConstraint(Sketcher.Constraint("Horizontal", 5))
sketch8.addConstraint(Sketcher.Constraint("Vertical", 6))
sketch8.addConstraint(Sketcher.Constraint("Horizontal", 7))
sketch8.addConstraint(Sketcher.Constraint("Vertical", 8))
sketch8.addConstraint(Sketcher.Constraint("Horizontal", 9))
sketch8.addConstraint(Sketcher.Constraint("Vertical", 10))
sketch8.addConstraint(Sketcher.Constraint("Horizontal", 11))
sketch8.addConstraint(Sketcher.Constraint("Horizontal", 12))
sketch8.addConstraint(Sketcher.Constraint("Vertical", 13))
sketch8.addConstraint(Sketcher.Constraint("Horizontal", 14))
sketch8.addConstraint(Sketcher.Constraint("Vertical", 15))
sketch8.addConstraint(Sketcher.Constraint("Coincident", 5, 2, -1, 1))
sketch8.addConstraint(Sketcher.Constraint("PointOnObject", 0, 2, -1))
sketch8.addConstraint(Sketcher.Constraint("PointOnObject", 14, 2, -2))
sketch8.addConstraint(Sketcher.Constraint("Horizontal", 3, 2, 6, 2))
sketch8.addConstraint(Sketcher.Constraint("Horizontal", 11, 2, 12, 2))
sketch8.addConstraint(Sketcher.Constraint("Horizontal", 9, 2, 13, 2))
sketch8.addConstraint(Sketcher.Constraint("Vertical", 3, 2, 8, 2))
sketch8.addConstraint(Sketcher.Constraint("Vertical", 2, 2, 9, 2))
sketch8.addConstraint(Sketcher.Constraint("Vertical", 7, 2, 12, 2))
sketch8.addConstraint(Sketcher.Constraint("Equal", 3, 5))
sketch8.addConstraint(Sketcher.Constraint("Equal", 14, 0))
sketch8.addConstraint(Sketcher.Constraint("Equal", 6, 8))
sketch8.addConstraint(Sketcher.Constraint("DistanceX", 1, 2, 1, 1, 8.0))
sketch8.addConstraint(Sketcher.Constraint("DistanceX", -1, 1, 0, 2, 180.0))
sketch8.addConstraint(Sketcher.Constraint("DistanceY", 8, 2, -1, 1, 112.0))
pad5 = doc.addObject("PartDesign::Pad", "Pad004")
body.addObject(pad5)
pad5.Profile = sketch8
pad5.Length = 50
doc.recompute()

fillet = doc.addObject("PartDesign::Fillet", "Fillet")
body.addObject(fillet)
fillet.Base = (pad5, edges_at(pad5, [
    (0, -120, 26),
    (180, -120, 26),
    (180, 0, 26),
    (0, 0, 26),
]))
fillet.Radius = 3

# Sketch on XY plane
sketch9 = doc.addObject("Sketcher::SketchObject", "Sketch008")
body.addObject(sketch9)
sketch9.AttachmentSupport = (doc.XY_Plane, [""])
sketch9.MapMode = "FlatFace"
sketch9.AttachmentOffset = App.Placement(App.Vector(0, 0, 52), App.Rotation())
sketch9.addGeometry(Part.Circle(App.Vector(4, -4, 0), App.Vector(0, 0, 1), 1.5), False)
sketch9.addGeometry(Part.Circle(App.Vector(176, -4, 0), App.Vector(0, 0, 1), 1.5), False)
sketch9.addGeometry(Part.Circle(App.Vector(4, -116, 0), App.Vector(0, 0, 1), 1.5), False)
sketch9.addGeometry(Part.Circle(App.Vector(176, -116, 0), App.Vector(0, 0, 1), 1.5), False)
sketch9.addConstraint(Sketcher.Constraint("Equal", 0, 1))
sketch9.addConstraint(Sketcher.Constraint("Equal", 1, 2))
sketch9.addConstraint(Sketcher.Constraint("Equal", 2, 3))
sketch9.addConstraint(Sketcher.Constraint("Horizontal", 0, 3, 1, 3))
sketch9.addConstraint(Sketcher.Constraint("Horizontal", 2, 3, 3, 3))
sketch9.addConstraint(Sketcher.Constraint("Vertical", 0, 3, 2, 3))
sketch9.addConstraint(Sketcher.Constraint("Vertical", 1, 3, 3, 3))
sketch9.addConstraint(Sketcher.Constraint("Diameter", 0, 3.0))
sketch9.addConstraint(Sketcher.Constraint("DistanceX", -1, 1, 0, 3, 4.0))
sketch9.addConstraint(Sketcher.Constraint("DistanceY", 0, 3, -1, 1, 4.0))
sketch9.addConstraint(Sketcher.Constraint("DistanceX", -1, 1, 1, 3, 176.0))
sketch9.addConstraint(Sketcher.Constraint("DistanceY", 2, 3, -1, 1, 116.0))
pocket4 = doc.addObject("PartDesign::Pocket", "Pocket003")
body.addObject(pocket4)
pocket4.Profile = sketch9
pocket4.Length = 10

doc.recompute()
